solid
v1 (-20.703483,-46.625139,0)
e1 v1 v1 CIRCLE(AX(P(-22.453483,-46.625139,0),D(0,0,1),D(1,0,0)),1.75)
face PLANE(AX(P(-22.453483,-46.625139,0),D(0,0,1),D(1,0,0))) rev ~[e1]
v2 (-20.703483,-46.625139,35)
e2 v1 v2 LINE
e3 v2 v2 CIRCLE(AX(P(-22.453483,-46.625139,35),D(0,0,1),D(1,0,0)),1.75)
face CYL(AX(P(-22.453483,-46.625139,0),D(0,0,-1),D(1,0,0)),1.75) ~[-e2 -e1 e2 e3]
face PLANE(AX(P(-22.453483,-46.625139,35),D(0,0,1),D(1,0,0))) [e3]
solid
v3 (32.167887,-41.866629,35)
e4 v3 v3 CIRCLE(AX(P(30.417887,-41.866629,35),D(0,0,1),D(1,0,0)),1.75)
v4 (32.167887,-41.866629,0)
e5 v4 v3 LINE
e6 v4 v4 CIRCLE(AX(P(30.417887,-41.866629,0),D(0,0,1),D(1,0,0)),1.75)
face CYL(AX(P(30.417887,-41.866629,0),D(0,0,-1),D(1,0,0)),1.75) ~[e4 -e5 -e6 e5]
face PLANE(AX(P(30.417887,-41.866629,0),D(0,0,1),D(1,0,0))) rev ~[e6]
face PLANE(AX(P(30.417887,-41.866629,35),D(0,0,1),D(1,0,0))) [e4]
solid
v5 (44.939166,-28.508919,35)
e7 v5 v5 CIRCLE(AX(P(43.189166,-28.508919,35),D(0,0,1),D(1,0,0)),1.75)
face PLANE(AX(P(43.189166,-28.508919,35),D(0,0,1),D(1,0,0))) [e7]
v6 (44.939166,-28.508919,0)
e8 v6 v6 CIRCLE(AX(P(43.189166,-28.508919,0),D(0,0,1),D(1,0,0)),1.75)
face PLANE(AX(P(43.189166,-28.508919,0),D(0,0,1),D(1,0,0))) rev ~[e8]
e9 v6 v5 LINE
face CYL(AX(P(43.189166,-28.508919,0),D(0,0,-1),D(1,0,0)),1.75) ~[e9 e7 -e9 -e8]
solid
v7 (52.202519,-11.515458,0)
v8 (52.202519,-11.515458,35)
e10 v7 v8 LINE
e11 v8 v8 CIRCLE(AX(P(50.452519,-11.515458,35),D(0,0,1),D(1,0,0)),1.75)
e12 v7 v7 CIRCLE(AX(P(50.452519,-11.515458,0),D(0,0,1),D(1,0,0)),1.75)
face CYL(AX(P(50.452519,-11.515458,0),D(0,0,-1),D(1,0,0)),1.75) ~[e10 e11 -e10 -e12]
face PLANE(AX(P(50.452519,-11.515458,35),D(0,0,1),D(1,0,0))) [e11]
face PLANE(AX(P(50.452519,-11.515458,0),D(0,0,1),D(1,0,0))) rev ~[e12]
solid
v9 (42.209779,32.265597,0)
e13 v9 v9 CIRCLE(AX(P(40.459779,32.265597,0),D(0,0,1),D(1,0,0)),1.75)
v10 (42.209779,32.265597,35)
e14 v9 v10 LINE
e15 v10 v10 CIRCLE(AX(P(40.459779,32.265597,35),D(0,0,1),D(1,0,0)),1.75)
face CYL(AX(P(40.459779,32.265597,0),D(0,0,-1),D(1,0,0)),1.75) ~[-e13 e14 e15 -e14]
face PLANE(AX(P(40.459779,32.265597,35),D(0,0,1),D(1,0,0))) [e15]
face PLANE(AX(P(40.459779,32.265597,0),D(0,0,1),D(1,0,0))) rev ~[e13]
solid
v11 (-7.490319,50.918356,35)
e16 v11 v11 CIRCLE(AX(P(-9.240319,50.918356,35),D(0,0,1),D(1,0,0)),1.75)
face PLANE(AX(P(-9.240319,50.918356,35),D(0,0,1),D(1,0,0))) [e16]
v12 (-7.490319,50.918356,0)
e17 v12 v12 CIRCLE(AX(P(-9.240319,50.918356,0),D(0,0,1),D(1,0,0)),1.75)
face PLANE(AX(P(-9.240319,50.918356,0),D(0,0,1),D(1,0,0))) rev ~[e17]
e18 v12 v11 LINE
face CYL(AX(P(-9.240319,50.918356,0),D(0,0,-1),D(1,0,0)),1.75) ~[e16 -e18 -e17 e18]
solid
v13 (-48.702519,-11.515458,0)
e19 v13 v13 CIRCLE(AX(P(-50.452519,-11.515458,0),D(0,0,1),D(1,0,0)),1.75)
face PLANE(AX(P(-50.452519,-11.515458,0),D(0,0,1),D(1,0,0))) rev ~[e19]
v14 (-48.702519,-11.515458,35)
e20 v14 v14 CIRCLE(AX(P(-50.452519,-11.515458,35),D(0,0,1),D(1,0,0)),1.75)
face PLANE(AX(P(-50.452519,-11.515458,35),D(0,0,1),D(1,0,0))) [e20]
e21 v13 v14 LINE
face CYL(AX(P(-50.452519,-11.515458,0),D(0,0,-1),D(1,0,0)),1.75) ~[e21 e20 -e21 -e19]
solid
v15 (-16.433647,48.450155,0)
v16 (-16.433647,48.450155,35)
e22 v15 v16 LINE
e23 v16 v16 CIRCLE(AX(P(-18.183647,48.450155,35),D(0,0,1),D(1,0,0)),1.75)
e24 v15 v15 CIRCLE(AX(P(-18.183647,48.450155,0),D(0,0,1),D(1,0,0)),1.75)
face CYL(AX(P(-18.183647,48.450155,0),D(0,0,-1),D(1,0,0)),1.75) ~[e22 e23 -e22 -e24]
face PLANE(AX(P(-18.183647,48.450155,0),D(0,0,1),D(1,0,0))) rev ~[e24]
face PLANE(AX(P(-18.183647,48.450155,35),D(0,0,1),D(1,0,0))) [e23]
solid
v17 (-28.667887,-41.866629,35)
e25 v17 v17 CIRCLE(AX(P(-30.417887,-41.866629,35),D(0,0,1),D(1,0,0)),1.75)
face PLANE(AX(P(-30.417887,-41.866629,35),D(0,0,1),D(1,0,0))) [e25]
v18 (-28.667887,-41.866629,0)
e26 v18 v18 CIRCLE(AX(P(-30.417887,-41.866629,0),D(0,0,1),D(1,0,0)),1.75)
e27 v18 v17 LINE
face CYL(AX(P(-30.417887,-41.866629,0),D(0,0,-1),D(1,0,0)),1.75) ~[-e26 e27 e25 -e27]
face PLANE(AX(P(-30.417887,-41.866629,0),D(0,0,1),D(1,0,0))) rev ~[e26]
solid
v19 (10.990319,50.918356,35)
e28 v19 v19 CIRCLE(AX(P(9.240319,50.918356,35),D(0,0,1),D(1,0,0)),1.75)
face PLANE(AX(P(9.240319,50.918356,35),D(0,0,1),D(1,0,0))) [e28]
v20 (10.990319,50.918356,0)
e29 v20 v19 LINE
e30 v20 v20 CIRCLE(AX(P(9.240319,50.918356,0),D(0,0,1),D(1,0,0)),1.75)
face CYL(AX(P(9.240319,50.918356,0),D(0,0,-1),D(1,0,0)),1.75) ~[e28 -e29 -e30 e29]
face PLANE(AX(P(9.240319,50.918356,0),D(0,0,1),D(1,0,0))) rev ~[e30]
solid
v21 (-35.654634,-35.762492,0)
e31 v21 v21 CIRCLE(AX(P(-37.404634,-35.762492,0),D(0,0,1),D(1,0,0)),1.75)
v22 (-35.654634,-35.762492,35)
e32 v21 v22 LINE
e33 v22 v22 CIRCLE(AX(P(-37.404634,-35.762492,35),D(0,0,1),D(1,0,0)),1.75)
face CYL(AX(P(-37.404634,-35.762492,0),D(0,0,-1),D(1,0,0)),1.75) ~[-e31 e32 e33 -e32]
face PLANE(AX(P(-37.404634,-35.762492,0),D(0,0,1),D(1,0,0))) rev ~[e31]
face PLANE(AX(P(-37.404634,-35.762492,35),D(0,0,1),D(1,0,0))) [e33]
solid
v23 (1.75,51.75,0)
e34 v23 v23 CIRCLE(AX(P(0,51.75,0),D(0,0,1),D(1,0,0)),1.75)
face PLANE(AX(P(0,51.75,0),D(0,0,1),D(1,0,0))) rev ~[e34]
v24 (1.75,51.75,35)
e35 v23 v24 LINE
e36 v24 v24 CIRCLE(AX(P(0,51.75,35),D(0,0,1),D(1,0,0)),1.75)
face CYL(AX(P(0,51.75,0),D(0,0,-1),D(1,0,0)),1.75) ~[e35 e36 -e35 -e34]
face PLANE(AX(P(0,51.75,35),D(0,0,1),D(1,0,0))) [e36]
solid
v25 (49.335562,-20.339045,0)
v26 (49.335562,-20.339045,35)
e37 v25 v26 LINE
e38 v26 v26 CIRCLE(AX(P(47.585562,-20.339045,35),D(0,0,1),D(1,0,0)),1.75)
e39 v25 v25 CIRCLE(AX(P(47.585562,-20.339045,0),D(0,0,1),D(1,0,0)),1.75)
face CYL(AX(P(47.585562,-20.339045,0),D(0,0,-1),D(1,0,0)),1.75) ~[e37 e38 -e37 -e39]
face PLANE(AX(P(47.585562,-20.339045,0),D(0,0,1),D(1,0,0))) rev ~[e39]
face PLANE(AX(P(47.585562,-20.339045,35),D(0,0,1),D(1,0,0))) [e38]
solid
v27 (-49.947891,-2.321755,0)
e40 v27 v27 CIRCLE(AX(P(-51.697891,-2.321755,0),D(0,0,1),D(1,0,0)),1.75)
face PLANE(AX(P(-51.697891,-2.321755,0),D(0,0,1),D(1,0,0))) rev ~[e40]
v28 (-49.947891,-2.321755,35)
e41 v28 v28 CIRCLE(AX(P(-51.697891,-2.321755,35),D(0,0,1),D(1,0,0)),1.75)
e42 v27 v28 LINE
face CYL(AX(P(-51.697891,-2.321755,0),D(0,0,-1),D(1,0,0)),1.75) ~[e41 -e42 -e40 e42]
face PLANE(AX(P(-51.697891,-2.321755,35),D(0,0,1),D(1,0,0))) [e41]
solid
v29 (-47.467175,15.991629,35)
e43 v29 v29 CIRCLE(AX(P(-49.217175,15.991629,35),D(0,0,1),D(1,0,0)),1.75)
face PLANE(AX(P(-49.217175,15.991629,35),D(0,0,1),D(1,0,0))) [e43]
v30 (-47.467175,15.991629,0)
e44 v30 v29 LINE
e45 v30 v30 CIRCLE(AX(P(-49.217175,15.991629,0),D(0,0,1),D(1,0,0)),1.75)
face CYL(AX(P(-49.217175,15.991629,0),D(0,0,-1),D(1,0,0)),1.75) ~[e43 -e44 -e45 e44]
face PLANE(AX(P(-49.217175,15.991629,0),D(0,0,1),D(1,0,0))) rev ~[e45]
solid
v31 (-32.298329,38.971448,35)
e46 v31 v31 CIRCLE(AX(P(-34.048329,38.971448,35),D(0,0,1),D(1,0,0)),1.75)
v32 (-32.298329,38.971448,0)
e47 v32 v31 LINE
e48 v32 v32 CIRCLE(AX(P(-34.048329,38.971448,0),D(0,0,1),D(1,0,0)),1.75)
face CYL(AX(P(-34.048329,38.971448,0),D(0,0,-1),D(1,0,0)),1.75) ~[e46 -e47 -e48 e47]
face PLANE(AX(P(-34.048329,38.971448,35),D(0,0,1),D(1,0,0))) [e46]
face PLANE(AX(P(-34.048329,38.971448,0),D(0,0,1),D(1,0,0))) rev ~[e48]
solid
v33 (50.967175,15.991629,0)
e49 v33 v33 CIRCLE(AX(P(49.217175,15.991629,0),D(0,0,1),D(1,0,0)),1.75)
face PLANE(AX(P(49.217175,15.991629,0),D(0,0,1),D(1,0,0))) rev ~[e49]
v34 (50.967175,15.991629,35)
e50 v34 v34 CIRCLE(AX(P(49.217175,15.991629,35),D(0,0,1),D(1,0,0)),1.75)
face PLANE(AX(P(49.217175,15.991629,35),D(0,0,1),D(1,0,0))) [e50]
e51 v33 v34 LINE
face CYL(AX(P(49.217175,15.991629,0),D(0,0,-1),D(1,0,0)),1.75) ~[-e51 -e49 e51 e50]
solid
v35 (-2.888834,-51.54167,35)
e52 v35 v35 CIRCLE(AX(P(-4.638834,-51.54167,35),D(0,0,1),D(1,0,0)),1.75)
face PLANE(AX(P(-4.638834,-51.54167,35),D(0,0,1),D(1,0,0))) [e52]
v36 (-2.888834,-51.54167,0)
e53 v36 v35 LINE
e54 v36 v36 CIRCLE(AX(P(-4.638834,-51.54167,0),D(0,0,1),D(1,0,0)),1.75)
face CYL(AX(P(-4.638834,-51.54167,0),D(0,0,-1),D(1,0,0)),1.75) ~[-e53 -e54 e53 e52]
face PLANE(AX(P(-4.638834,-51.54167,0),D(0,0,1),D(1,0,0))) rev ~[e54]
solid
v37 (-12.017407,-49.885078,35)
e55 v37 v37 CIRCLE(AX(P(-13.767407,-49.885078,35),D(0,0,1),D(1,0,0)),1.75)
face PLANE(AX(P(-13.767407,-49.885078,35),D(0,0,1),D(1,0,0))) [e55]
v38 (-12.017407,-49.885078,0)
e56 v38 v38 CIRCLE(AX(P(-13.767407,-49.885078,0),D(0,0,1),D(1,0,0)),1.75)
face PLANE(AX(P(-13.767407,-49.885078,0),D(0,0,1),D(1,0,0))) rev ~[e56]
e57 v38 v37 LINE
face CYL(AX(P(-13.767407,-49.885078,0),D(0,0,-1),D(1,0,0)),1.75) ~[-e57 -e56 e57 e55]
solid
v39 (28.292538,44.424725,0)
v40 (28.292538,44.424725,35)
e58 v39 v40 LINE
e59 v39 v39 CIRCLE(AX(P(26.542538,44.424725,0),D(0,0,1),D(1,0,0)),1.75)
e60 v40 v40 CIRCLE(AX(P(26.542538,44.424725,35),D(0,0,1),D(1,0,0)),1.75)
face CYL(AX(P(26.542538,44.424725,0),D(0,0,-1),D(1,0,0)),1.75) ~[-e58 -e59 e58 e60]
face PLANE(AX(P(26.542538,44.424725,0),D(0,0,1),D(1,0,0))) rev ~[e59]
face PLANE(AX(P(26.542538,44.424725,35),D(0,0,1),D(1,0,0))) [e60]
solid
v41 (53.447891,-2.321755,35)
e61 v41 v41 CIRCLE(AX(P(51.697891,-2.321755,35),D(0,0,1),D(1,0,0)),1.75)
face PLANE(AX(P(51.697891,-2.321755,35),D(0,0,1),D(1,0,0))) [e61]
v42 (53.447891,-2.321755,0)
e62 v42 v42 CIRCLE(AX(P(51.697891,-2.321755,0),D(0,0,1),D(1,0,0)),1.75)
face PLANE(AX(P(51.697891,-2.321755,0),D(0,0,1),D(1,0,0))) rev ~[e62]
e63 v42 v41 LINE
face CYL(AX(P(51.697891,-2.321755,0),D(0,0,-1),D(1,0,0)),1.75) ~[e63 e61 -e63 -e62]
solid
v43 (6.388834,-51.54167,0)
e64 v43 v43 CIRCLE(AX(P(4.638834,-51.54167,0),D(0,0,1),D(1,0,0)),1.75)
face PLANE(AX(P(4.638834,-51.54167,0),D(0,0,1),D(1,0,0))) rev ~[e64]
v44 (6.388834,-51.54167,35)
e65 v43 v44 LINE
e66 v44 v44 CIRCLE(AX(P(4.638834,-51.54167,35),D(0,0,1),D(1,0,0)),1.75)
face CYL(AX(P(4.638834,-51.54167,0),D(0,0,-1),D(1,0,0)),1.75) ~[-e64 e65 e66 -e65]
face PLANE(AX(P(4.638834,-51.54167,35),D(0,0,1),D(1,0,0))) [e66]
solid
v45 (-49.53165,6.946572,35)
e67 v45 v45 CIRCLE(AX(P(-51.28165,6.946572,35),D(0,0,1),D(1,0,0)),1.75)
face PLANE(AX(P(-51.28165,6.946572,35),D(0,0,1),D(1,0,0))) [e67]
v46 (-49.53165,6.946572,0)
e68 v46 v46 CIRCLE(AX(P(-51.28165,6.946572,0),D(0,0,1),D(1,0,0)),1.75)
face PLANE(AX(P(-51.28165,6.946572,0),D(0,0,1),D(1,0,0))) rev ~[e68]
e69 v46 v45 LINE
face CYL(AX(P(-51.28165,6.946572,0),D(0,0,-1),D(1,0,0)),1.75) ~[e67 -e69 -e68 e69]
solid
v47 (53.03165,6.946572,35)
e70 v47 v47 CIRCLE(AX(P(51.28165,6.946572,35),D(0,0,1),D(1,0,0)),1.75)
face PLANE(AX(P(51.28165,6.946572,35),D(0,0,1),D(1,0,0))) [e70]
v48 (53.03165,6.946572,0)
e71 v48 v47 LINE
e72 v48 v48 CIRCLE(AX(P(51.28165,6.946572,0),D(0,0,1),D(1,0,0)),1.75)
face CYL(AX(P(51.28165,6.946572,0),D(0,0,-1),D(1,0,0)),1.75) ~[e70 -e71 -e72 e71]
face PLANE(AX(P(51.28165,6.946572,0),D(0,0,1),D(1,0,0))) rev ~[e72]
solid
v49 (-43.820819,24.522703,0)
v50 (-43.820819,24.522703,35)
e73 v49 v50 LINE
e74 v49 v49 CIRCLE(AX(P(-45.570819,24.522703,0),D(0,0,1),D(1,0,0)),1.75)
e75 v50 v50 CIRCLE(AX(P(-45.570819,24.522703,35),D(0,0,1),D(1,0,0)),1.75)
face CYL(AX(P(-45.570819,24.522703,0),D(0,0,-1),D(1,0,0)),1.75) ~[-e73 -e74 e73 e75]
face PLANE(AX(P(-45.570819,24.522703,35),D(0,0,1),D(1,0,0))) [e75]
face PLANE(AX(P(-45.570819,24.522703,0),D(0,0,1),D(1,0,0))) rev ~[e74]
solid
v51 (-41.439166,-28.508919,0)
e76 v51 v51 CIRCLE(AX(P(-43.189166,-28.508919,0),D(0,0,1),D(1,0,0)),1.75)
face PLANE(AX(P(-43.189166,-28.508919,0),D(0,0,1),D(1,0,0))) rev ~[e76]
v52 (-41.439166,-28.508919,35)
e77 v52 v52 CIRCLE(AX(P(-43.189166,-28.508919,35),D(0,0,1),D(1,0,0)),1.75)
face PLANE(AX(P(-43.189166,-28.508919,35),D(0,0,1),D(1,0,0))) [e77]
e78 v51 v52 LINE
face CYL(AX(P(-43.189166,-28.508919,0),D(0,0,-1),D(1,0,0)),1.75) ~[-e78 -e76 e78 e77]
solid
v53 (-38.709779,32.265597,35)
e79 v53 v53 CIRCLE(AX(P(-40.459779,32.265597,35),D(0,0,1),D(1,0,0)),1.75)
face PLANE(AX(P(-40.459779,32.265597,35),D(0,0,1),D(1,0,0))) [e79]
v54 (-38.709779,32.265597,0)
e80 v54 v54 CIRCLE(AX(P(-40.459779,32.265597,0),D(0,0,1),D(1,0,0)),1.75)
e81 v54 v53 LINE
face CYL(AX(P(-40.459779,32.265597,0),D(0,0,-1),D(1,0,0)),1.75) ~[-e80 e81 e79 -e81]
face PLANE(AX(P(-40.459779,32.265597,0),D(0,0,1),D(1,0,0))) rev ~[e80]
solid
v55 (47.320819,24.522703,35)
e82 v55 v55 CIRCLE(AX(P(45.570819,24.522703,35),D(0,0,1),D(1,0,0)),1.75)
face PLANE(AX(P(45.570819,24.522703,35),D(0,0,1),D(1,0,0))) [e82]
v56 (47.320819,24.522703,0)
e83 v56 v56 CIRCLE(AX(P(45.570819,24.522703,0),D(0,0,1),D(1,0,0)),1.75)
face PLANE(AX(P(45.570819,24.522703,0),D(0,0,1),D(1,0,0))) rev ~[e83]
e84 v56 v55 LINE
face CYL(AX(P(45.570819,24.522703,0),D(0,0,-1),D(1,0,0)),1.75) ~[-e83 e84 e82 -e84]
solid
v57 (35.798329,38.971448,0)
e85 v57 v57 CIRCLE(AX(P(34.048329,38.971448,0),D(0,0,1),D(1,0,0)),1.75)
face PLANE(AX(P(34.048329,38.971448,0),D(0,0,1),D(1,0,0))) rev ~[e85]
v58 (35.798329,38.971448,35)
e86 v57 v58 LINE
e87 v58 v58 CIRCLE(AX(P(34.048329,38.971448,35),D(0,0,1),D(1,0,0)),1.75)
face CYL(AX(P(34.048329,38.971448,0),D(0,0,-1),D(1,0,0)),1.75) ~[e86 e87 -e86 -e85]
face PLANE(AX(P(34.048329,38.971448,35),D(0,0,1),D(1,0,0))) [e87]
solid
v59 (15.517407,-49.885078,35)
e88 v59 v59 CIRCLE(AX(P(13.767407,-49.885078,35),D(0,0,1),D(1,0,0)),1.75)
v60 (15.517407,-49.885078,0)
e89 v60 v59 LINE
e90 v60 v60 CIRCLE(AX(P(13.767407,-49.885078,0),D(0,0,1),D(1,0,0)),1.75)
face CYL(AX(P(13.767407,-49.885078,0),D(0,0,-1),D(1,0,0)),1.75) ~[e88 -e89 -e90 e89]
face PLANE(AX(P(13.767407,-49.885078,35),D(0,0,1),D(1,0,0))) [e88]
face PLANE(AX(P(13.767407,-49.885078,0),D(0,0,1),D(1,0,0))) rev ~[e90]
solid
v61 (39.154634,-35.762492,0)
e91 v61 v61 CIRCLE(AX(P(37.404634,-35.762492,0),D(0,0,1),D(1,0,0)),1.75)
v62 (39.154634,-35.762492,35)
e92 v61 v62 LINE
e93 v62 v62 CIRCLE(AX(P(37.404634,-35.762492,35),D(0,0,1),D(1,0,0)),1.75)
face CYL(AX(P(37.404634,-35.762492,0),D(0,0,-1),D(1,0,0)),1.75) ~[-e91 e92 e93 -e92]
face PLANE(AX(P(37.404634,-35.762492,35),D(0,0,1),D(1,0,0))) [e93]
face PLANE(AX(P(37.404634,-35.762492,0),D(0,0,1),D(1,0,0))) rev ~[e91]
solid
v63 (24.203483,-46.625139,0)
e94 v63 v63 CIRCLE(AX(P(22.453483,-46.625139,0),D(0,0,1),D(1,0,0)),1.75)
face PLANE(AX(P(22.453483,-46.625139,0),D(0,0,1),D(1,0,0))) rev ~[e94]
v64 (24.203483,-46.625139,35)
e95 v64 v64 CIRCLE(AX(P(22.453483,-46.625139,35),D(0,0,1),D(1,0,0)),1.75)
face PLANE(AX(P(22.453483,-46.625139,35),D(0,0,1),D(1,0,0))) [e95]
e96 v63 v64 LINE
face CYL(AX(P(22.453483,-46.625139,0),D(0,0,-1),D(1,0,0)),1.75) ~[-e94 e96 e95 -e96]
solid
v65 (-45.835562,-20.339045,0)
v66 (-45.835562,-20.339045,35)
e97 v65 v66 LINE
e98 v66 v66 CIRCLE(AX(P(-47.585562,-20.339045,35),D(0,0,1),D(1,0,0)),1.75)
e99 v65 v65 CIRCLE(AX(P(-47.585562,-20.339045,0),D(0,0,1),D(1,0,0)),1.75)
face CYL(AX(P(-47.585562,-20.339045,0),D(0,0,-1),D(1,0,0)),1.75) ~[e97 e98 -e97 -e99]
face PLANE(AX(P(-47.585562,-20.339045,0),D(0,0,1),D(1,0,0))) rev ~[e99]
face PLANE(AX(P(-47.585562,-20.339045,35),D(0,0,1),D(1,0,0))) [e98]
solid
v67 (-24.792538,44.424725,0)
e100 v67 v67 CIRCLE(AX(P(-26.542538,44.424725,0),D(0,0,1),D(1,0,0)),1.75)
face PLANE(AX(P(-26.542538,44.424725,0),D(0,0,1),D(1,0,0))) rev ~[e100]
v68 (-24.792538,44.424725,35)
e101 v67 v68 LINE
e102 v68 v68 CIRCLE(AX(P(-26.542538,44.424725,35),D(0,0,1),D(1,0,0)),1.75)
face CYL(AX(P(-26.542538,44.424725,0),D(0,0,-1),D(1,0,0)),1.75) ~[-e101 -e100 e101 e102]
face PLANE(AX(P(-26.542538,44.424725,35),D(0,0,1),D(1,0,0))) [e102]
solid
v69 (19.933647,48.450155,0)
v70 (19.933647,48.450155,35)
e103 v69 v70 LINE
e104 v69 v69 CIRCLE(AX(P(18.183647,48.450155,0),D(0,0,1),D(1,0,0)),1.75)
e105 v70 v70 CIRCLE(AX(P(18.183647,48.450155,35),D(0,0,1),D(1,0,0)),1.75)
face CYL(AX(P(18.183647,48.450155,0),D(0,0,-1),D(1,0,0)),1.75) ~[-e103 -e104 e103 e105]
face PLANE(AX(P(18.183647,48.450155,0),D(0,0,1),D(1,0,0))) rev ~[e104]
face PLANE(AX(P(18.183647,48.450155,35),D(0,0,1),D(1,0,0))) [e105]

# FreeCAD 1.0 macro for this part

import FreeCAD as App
import Part
import Sketcher

V = App.Vector
Q = App.Units.Quantity

doc = App.newDocument("Part")
params = doc.addObject("Spreadsheet::Sheet", "Params")
for row, (alias, value) in enumerate([
    ("sketch1_diameter", "3.5 mm"),
    ("pad1_length", "35 mm"),
    ("sketch2_diameter", "3.5 mm"),
    ("pad2_length", "35 mm"),
    ("sketch3_diameter", "3.5 mm"),
    ("pad3_length", "35 mm"),
    ("sketch4_diameter", "3.5 mm"),
    ("pad4_length", "35 mm"),
    ("sketch5_diameter", "3.5 mm"),
    ("pad5_length", "35 mm"),
    ("sketch6_diameter", "3.5 mm"),
    ("pad6_length", "35 mm"),
    ("sketch7_diameter", "3.5 mm"),
    ("pad7_length", "35 mm"),
    ("sketch8_diameter", "3.5 mm"),
    ("pad8_length", "35 mm"),
    ("sketch9_diameter", "3.5 mm"),
    ("pad9_length", "35 mm"),
    ("sketch10_diameter", "3.5 mm"),
    ("pad10_length", "35 mm"),
    ("sketch11_diameter", "3.5 mm"),
    ("pad11_length", "35 mm"),
    ("sketch12_diameter", "3.5 mm"),
    ("pad12_length", "35 mm"),
    ("sketch13_diameter", "3.5 mm"),
    ("pad13_length", "35 mm"),
    ("sketch14_diameter", "3.5 mm"),
    ("pad14_length", "35 mm"),
    ("sketch15_diameter", "3.5 mm"),
    ("pad15_length", "35 mm"),
    ("sketch16_diameter", "3.5 mm"),
    ("pad16_length", "35 mm"),
    ("sketch17_diameter", "3.5 mm"),
    ("pad17_length", "35 mm"),
    ("sketch18_diameter", "3.5 mm"),
    ("pad18_length", "35 mm"),
    ("sketch19_diameter", "3.5 mm"),
    ("pad19_length", "35 mm"),
    ("sketch20_diameter", "3.5 mm"),
    ("pad20_length", "35 mm"),
    ("sketch21_diameter", "3.5 mm"),
    ("pad21_length", "35 mm"),
    ("sketch22_diameter", "3.5 mm"),
    ("pad22_length", "35 mm"),
    ("sketch23_diameter", "3.5 mm"),
    ("pad23_length", "35 mm"),
    ("sketch24_diameter", "3.5 mm"),
    ("pad24_length", "35 mm"),
    ("sketch25_diameter", "3.5 mm"),
    ("pad25_length", "35 mm"),
    ("sketch26_diameter", "3.5 mm"),
    ("pad26_length", "35 mm"),
    ("sketch27_diameter", "3.5 mm"),
    ("pad27_length", "35 mm"),
    ("sketch28_diameter", "3.5 mm"),
    ("pad28_length", "35 mm"),
    ("sketch29_diameter", "3.5 mm"),
    ("pad29_length", "35 mm"),
    ("sketch30_diameter", "3.5 mm"),
    ("pad30_length", "35 mm"),
    ("sketch31_diameter", "3.5 mm"),
    ("pad31_length", "35 mm"),
    ("sketch32_diameter", "3.5 mm"),
    ("pad32_length", "35 mm"),
    ("sketch33_diameter", "3.5 mm"),
    ("pad33_length", "35 mm"),
    ("sketch34_diameter", "3.5 mm"),
    ("pad34_length", "35 mm"),
    ("sketch35_diameter", "3.5 mm"),
    ("pad35_length", "35 mm"),
], start=1):
    params.set(f"A{row}", alias)
    params.set(f"B{row}", "=" + value)
    params.setAlias(f"B{row}", alias)

body = doc.addObject("PartDesign::Body", "Body")

# Sketch on XY plane
sketch1 = doc.addObject("Sketcher::SketchObject", "Sketch")
body.addObject(sketch1)
sketch1.AttachmentSupport = (doc.XY_Plane, [""])
sketch1.MapMode = "FlatFace"
sketch1.addGeometry(Part.Circle(V(0, 51.8, 0), V(0, 0, 1), 1.8), False)
sketch1.addConstraint(Sketcher.Constraint("PointOnObject", 0, 3, -2))
sketch1.addConstraint(Sketcher.Constraint("Diameter", 0, Q("3.5 mm")))
sketch1.addConstraint(Sketcher.Constraint("DistanceY", -1, 1, 0, 3, Q("51.75 mm")))
sketch1.setExpression("Constraints[1]", "Params.sketch1_diameter")
pad1 = doc.addObject("PartDesign::Pad", "Pad")
body.addObject(pad1)
pad1.Profile = sketch1
pad1.setExpression("Length", "Params.pad1_length")
body2 = doc.addObject("PartDesign::Body", "Body001")

# Sketch on XY plane
sketch2 = doc.addObject("Sketcher::SketchObject", "Sketch001")
body2.addObject(sketch2)
sketch2.AttachmentSupport = (doc.getObject("XY_Plane001"), [""])
sketch2.MapMode = "FlatFace"
sketch2.addGeometry(Part.Circle(V(9.2, 50.9, 0), V(0, 0, 1), 1.8), False)
sketch2.addConstraint(Sketcher.Constraint("Diameter", 0, Q("3.5 mm")))
sketch2.addConstraint(Sketcher.Constraint("DistanceX", -1, 1, 0, 3, Q("9.240319 mm")))
sketch2.addConstraint(Sketcher.Constraint("DistanceY", -1, 1, 0, 3, Q("50.918356 mm")))
sketch2.setExpression("Constraints[0]", "Params.sketch2_diameter")
pad2 = doc.addObject("PartDesign::Pad", "Pad001")
body2.addObject(pad2)
pad2.Profile = sketch2
pad2.setExpression("Length", "Params.pad2_length")
body3 = doc.addObject("PartDesign::Body", "Body002")

# Sketch on XY plane
sketch3 = doc.addObject("Sketcher::SketchObject", "Sketch002")
body3.addObject(sketch3)
sketch3.AttachmentSupport = (doc.getObject("XY_Plane002"), [""])
sketch3.MapMode = "FlatFace"
sketch3.addGeometry(Part.Circle(V(18.2, 48.5, 0), V(0, 0, 1), 1.8), False)
sketch3.addConstraint(Sketcher.Constraint("Diameter", 0, Q("3.5 mm")))
sketch3.addConstraint(Sketcher.Constraint("DistanceX", -1, 1, 0, 3, Q("18.183647 mm")))
sketch3.addConstraint(Sketcher.Constraint("DistanceY", -1, 1, 0, 3, Q("48.450155 mm")))
sketch3.setExpression("Constraints[0]", "Params.sketch3_diameter")
pad3 = doc.addObject("PartDesign::Pad", "Pad002")
body3.addObject(pad3)
pad3.Profile = sketch3
pad3.setExpression("Length", "Params.pad3_length")
body4 = doc.addObject("PartDesign::Body", "Body003")

# Sketch on XY plane
sketch4 = doc.addObject("Sketcher::SketchObject", "Sketch003")
body4.addObject(sketch4)
sketch4.AttachmentSupport = (doc.getObject("XY_Plane003"), [""])
sketch4.MapMode = "FlatFace"
sketch4.addGeometry(Part.Circle(V(26.5, 44.4, 0), V(0, 0, 1), 1.8), False)
sketch4.addConstraint(Sketcher.Constraint("Diameter", 0, Q("3.5 mm")))
sketch4.addConstraint(Sketcher.Constraint("DistanceX", -1, 1, 0, 3, Q("26.542538 mm")))
sketch4.addConstraint(Sketcher.Constraint("DistanceY", -1, 1, 0, 3, Q("44.424725 mm")))
sketch4.setExpression("Constraints[0]", "Params.sketch4_diameter")
pad4 = doc.addObject("PartDesign::Pad", "Pad003")
body4.addObject(pad4)
pad4.Profile = sketch4
pad4.setExpression("Length", "Params.pad4_length")
body5 = doc.addObject("PartDesign::Body", "Body004")

# Sketch on XY plane
sketch5 = doc.addObject("Sketcher::SketchObject", "Sketch004")
body5.addObject(sketch5)
sketch5.AttachmentSupport = (doc.getObject("XY_Plane004"), [""])
sketch5.MapMode = "FlatFace"
sketch5.addGeometry(Part.Circle(V(34, 39, 0), V(0, 0, 1), 1.8), False)
sketch5.addConstraint(Sketcher.Constraint("Diameter", 0, Q("3.5 mm")))
sketch5.addConstraint(Sketcher.Constraint("DistanceX", -1, 1, 0, 3, Q("34.048329 mm")))
sketch5.addConstraint(Sketcher.Constraint("DistanceY", -1, 1, 0, 3, Q("38.971448 mm")))
sketch5.setExpression("Constraints[0]", "Params.sketch5_diameter")
pad5 = doc.addObject("PartDesign::Pad", "Pad004")
body5.addObject(pad5)
pad5.Profile = sketch5
pad5.setExpression("Length", "Params.pad5_length")
body6 = doc.addObject("PartDesign::Body", "Body005")

# Sketch on XY plane
sketch6 = doc.addObject("Sketcher::SketchObject", "Sketch005")
body6.addObject(sketch6)
sketch6.AttachmentSupport = (doc.getObject("XY_Plane005"), [""])
sketch6.MapMode = "FlatFace"
sketch6.addGeometry(Part.Circle(V(40.5, 32.3, 0), V(0, 0, 1), 1.8), False)
sketch6.addConstraint(Sketcher.Constraint("Diameter", 0, Q("3.5 mm")))
sketch6.addConstraint(Sketcher.Constraint("DistanceX", -1, 1, 0, 3, Q("40.459779 mm")))
sketch6.addConstraint(Sketcher.Constraint("DistanceY", -1, 1, 0, 3, Q("32.265597 mm")))
sketch6.setExpression("Constraints[0]", "Params.sketch6_diameter")
pad6 = doc.addObject("PartDesign::Pad", "Pad005")
body6.addObject(pad6)
pad6.Profile = sketch6
pad6.setExpression("Length", "Params.pad6_length")
body7 = doc.addObject("PartDesign::Body", "Body006")

# Sketch on XY plane
sketch7 = doc.addObject("Sketcher::SketchObject", "Sketch006")
body7.addObject(sketch7)
sketch7.AttachmentSupport = (doc.getObject("XY_Plane006"), [""])
sketch7.MapMode = "FlatFace"
sketch7.addGeometry(Part.Circle(V(45.6, 24.5, 0), V(0, 0, 1), 1.8), False)
sketch7.addConstraint(Sketcher.Constraint("Diameter", 0, Q("3.5 mm")))
sketch7.addConstraint(Sketcher.Constraint("DistanceX", -1, 1, 0, 3, Q("45.570819 mm")))
sketch7.addConstraint(Sketcher.Constraint("DistanceY", -1, 1, 0, 3, Q("24.522703 mm")))
sketch7.setExpression("Constraints[0]", "Params.sketch7_diameter")
pad7 = doc.addObject("PartDesign::Pad", "Pad006")
body7.addObject(pad7)
pad7.Profile = sketch7
pad7.setExpression("Length", "Params.pad7_length")
body8 = doc.addObject("PartDesign::Body", "Body007")

# Sketch on XY plane
sketch8 = doc.addObject("Sketcher::SketchObject", "Sketch007")
body8.addObject(sketch8)
sketch8.AttachmentSupport = (doc.getObject("XY_Plane007"), [""])
sketch8.MapMode = "FlatFace"
sketch8.addGeometry(Part.Circle(V(49.2, 16, 0), V(0, 0, 1), 1.8), False)
sketch8.addConstraint(Sketcher.Constraint("Diameter", 0, Q("3.5 mm")))
sketch8.addConstraint(Sketcher.Constraint("DistanceY", -1, 1, 0, 3, Q("15.991629 mm")))
sketch8.addConstraint(Sketcher.Constraint("DistanceX", -1, 1, 0, 3, Q("49.217175 mm")))
sketch8.setExpression("Constraints[0]", "Params.sketch8_diameter")
pad8 = doc.addObject("PartDesign::Pad", "Pad007")
body8.addObject(pad8)
pad8.Profile = sketch8
pad8.setExpression("Length", "Params.pad8_length")
body9 = doc.addObject("PartDesign::Body", "Body008")

# Sketch on XY plane
sketch9 = doc.addObject("Sketcher::SketchObject", "Sketch008")
body9.addObject(sketch9)
sketch9.AttachmentSupport = (doc.getObject("XY_Plane008"), [""])
sketch9.MapMode = "FlatFace"
sketch9.addGeometry(Part.Circle(V(51.3, 6.9, 0), V(0, 0, 1), 1.8), False)
sketch9.addConstraint(Sketcher.Constraint("Diameter", 0, Q("3.5 mm")))
sketch9.addConstraint(Sketcher.Constraint("DistanceX", -1, 1, 0, 3, Q("51.28165 mm")))
sketch9.addConstraint(Sketcher.Constraint("DistanceY", -1, 1, 0, 3, Q("6.946572 mm")))
sketch9.setExpression("Constraints[0]", "Params.sketch9_diameter")
pad9 = doc.addObject("PartDesign::Pad", "Pad008")
body9.addObject(pad9)
pad9.Profile = sketch9
pad9.setExpression("Length", "Params.pad9_length")
body10 = doc.addObject("PartDesign::Body", "Body009")

# Sketch on XY plane
sketch10 = doc.addObject("Sketcher::SketchObject", "Sketch009")
body10.addObject(sketch10)
sketch10.AttachmentSupport = (doc.getObject("XY_Plane009"), [""])
sketch10.MapMode = "FlatFace"
sketch10.addGeometry(Part.Circle(V(51.7, -2.3, 0), V(0, 0, 1), 1.8), False)
sketch10.addConstraint(Sketcher.Constraint("Diameter", 0, Q("3.5 mm")))
sketch10.addConstraint(Sketcher.Constraint("DistanceX", -1, 1, 0, 3, Q("51.697891 mm")))
sketch10.addConstraint(Sketcher.Constraint("DistanceY", 0, 3, -1, 1, Q("2.321755 mm")))
sketch10.setExpression("Constraints[0]", "Params.sketch10_diameter")
pad10 = doc.addObject("PartDesign::Pad", "Pad009")
body10.addObject(pad10)
pad10.Profile = sketch10
pad10.setExpression("Length", "Params.pad10_length")
body11 = doc.addObject("PartDesign::Body", "Body010")

# Sketch on XY plane
sketch11 = doc.addObject("Sketcher::SketchObject", "Sketch010")
body11.addObject(sketch11)
sketch11.AttachmentSupport = (doc.getObject("XY_Plane010"), [""])
sketch11.MapMode = "FlatFace"
sketch11.addGeometry(Part.Circle(V(50.5, -11.5, 0), V(0, 0, 1), 1.8), False)
sketch11.addConstraint(Sketcher.Constraint("Diameter", 0, Q("3.5 mm")))
sketch11.addConstraint(Sketcher.Constraint("DistanceX", -1, 1, 0, 3, Q("50.452519 mm")))
sketch11.addConstraint(Sketcher.Constraint("DistanceY", 0, 3, -1, 1, Q("11.515458 mm")))
sketch11.setExpression("Constraints[0]", "Params.sketch11_diameter")
pad11 = doc.addObject("PartDesign::Pad", "Pad010")
body11.addObject(pad11)
pad11.Profile = sketch11
pad11.setExpression("Length", "Params.pad11_length")
body12 = doc.addObject("PartDesign::Body", "Body011")

# Sketch on XY plane
sketch12 = doc.addObject("Sketcher::SketchObject", "Sketch011")
body12.addObject(sketch12)
sketch12.AttachmentSupport = (doc.getObject("XY_Plane011"), [""])
sketch12.MapMode = "FlatFace"
sketch12.addGeometry(Part.Circle(V(47.6, -20.3, 0), V(0, 0, 1), 1.8), False)
sketch12.addConstraint(Sketcher.Constraint("Diameter", 0, Q("3.5 mm")))
sketch12.addConstraint(Sketcher.Constraint("DistanceX", -1, 1, 0, 3, Q("47.585562 mm")))
sketch12.addConstraint(Sketcher.Constraint("DistanceY", 0, 3, -1, 1, Q("20.339045 mm")))
sketch12.setExpression("Constraints[0]", "Params.sketch12_diameter")
pad12 = doc.addObject("PartDesign::Pad", "Pad011")
body12.addObject(pad12)
pad12.Profile = sketch12
pad12.setExpression("Length", "Params.pad12_length")
body13 = doc.addObject("PartDesign::Body", "Body012")

# Sketch on XY plane
sketch13 = doc.addObject("Sketcher::SketchObject", "Sketch012")
body13.addObject(sketch13)
sketch13.AttachmentSupport = (doc.getObject("XY_Plane012"), [""])
sketch13.MapMode = "FlatFace"
sketch13.addGeometry(Part.Circle(V(43.2, -28.5, 0), V(0, 0, 1), 1.8), False)
sketch13.addConstraint(Sketcher.Constraint("Diameter", 0, Q("3.5 mm")))
sketch13.addConstraint(Sketcher.Constraint("DistanceY", 0, 3, -1, 1, Q("28.508919 mm")))
sketch13.addConstraint(Sketcher.Constraint("DistanceX", -1, 1, 0, 3, Q("43.189166 mm")))
sketch13.setExpression("Constraints[0]", "Params.sketch13_diameter")
pad13 = doc.addObject("PartDesign::Pad", "Pad012")
body13.addObject(pad13)
pad13.Profile = sketch13
pad13.setExpression("Length", "Params.pad13_length")
body14 = doc.addObject("PartDesign::Body", "Body013")

# Sketch on XY plane
sketch14 = doc.addObject("Sketcher::SketchObject", "Sketch013")
body14.addObject(sketch14)
sketch14.AttachmentSupport = (doc.getObject("XY_Plane013"), [""])
sketch14.MapMode = "FlatFace"
sketch14.addGeometry(Part.Circle(V(37.4, -35.8, 0), V(0, 0, 1), 1.8), False)
sketch14.addConstraint(Sketcher.Constraint("Diameter", 0, Q("3.5 mm")))
sketch14.addConstraint(Sketcher.Constraint("DistanceX", -1, 1, 0, 3, Q("37.404634 mm")))
sketch14.addConstraint(Sketcher.Constraint("DistanceY", 0, 3, -1, 1, Q("35.762492 mm")))
sketch14.setExpression("Constraints[0]", "Params.sketch14_diameter")
pad14 = doc.addObject("PartDesign::Pad", "Pad013")
body14.addObject(pad14)
pad14.Profile = sketch14
pad14.setExpression("Length", "Params.pad14_length")
body15 = doc.addObject("PartDesign::Body", "Body014")

# Sketch on XY plane
sketch15 = doc.addObject("Sketcher::SketchObject", "Sketch014")
body15.addObject(sketch15)
sketch15.AttachmentSupport = (doc.getObject("XY_Plane014"), [""])
sketch15.MapMode = "FlatFace"
sketch15.addGeometry(Part.Circle(V(30.4, -41.9, 0), V(0, 0, 1), 1.8), False)
sketch15.addConstraint(Sketcher.Constraint("Diameter", 0, Q("3.5 mm")))
sketch15.addConstraint(Sketcher.Constraint("DistanceY", 0, 3, -1, 1, Q("41.866629 mm")))
sketch15.addConstraint(Sketcher.Constraint("DistanceX", -1, 1, 0, 3, Q("30.417887 mm")))
sketch15.setExpression("Constraints[0]", "Params.sketch15_diameter")
pad15 = doc.addObject("PartDesign::Pad", "Pad014")
body15.addObject(pad15)
pad15.Profile = sketch15
pad15.setExpression("Length", "Params.pad15_length")
body16 = doc.addObject("PartDesign::Body", "Body015")

# Sketch on XY plane
sketch16 = doc.addObject("Sketcher::SketchObject", "Sketch015")
body16.addObject(sketch16)
sketch16.AttachmentSupport = (doc.getObject("XY_Plane015"), [""])
sketch16.MapMode = "FlatFace"
sketch16.addGeometry(Part.Circle(V(22.5, -46.6, 0), V(0, 0, 1), 1.8), False)
sketch16.addConstraint(Sketcher.Constraint("Diameter", 0, Q("3.5 mm")))
sketch16.addConstraint(Sketcher.Constraint("DistanceY", 0, 3, -1, 1, Q("46.625139 mm")))
sketch16.addConstraint(Sketcher.Constraint("DistanceX", -1, 1, 0, 3, Q("22.453483 mm")))
sketch16.setExpression("Constraints[0]", "Params.sketch16_diameter")
pad16 = doc.addObject("PartDesign::Pad", "Pad015")
body16.addObject(pad16)
pad16.Profile = sketch16
pad16.setExpression("Length", "Params.pad16_length")
body17 = doc.addObject("PartDesign::Body", "Body016")

# Sketch on XY plane
sketch17 = doc.addObject("Sketcher::SketchObject", "Sketch016")
body17.addObject(sketch17)
sketch17.AttachmentSupport = (doc.getObject("XY_Plane016"), [""])
sketch17.MapMode = "FlatFace"
sketch17.addGeometry(Part.Circle(V(13.8, -49.9, 0), V(0, 0, 1), 1.8), False)
sketch17.addConstraint(Sketcher.Constraint("Diameter", 0, Q("3.5 mm")))
sketch17.addConstraint(Sketcher.Constraint("DistanceY", 0, 3, -1, 1, Q("49.885078 mm")))
sketch17.addConstraint(Sketcher.Constraint("DistanceX", -1, 1, 0, 3, Q("13.767407 mm")))
sketch17.setExpression("Constraints[0]", "Params.sketch17_diameter")
pad17 = doc.addObject("PartDesign::Pad", "Pad016")
body17.addObject(pad17)
pad17.Profile = sketch17
pad17.setExpression("Length", "Params.pad17_length")
body18 = doc.addObject("PartDesign::Body", "Body017")

# Sketch on XY plane
sketch18 = doc.addObject("Sketcher::SketchObject", "Sketch017")
body18.addObject(sketch18)
sketch18.AttachmentSupport = (doc.getObject("XY_Plane017"), [""])
sketch18.MapMode = "FlatFace"
sketch18.addGeometry(Part.Circle(V(4.6, -51.5, 0), V(0, 0, 1), 1.8), False)
sketch18.addConstraint(Sketcher.Constraint("Diameter", 0, Q("3.5 mm")))
sketch18.addConstraint(Sketcher.Constraint("DistanceY", 0, 3, -1, 1, Q("51.54167 mm")))
sketch18.addConstraint(Sketcher.Constraint("DistanceX", -1, 1, 0, 3, Q("4.638834 mm")))
sketch18.setExpression("Constraints[0]", "Params.sketch18_diameter")
pad18 = doc.addObject("PartDesign::Pad", "Pad017")
body18.addObject(pad18)
pad18.Profile = sketch18
pad18.setExpression("Length", "Params.pad18_length")
body19 = doc.addObject("PartDesign::Body", "Body018")

# Sketch on XY plane
sketch19 = doc.addObject("Sketcher::SketchObject", "Sketch018")
body19.addObject(sketch19)
sketch19.AttachmentSupport = (doc.getObject("XY_Plane018"), [""])
sketch19.MapMode = "FlatFace"
sketch19.addGeometry(Part.Circle(V(-4.6, -51.5, 0), V(0, 0, 1), 1.8), False)
sketch19.addConstraint(Sketcher.Constraint("Diameter", 0, Q("3.5 mm")))
sketch19.addConstraint(Sketcher.Constraint("DistanceY", 0, 3, -1, 1, Q("51.54167 mm")))
sketch19.addConstraint(Sketcher.Constraint("DistanceX", 0, 3, -1, 1, Q("4.638834 mm")))
sketch19.setExpression("Constraints[0]", "Params.sketch19_diameter")
pad19 = doc.addObject("PartDesign::Pad", "Pad018")
body19.addObject(pad19)
pad19.Profile = sketch19
pad19.setExpression("Length", "Params.pad19_length")
body20 = doc.addObject("PartDesign::Body", "Body019")

# Sketch on XY plane
sketch20 = doc.addObject("Sketcher::SketchObject", "Sketch019")
body20.addObject(sketch20)
sketch20.AttachmentSupport = (doc.getObject("XY_Plane019"), [""])
sketch20.MapMode = "FlatFace"
sketch20.addGeometry(Part.Circle(V(-13.8, -49.9, 0), V(0, 0, 1), 1.8), False)
sketch20.addConstraint(Sketcher.Constraint("Diameter", 0, Q("3.5 mm")))
sketch20.addConstraint(Sketcher.Constraint("DistanceY", 0, 3, -1, 1, Q("49.885078 mm")))
sketch20.addConstraint(Sketcher.Constraint("DistanceX", 0, 3, -1, 1, Q("13.767407 mm")))
sketch20.setExpression("Constraints[0]", "Params.sketch20_diameter")
pad20 = doc.addObject("PartDesign::Pad", "Pad019")
body20.addObject(pad20)
pad20.Profile = sketch20
pad20.setExpression("Length", "Params.pad20_length")
body21 = doc.addObject("PartDesign::Body", "Body020")

# Sketch on XY plane
sketch21 = doc.addObject("Sketcher::SketchObject", "Sketch020")
body21.addObject(sketch21)
sketch21.AttachmentSupport = (doc.getObject("XY_Plane020"), [""])
sketch21.MapMode = "FlatFace"
sketch21.addGeometry(Part.Circle(V(-22.5, -46.6, 0), V(0, 0, 1), 1.8), False)
sketch21.addConstraint(Sketcher.Constraint("Diameter", 0, Q("3.5 mm")))
sketch21.addConstraint(Sketcher.Constraint("DistanceY", 0, 3, -1, 1, Q("46.625139 mm")))
sketch21.addConstraint(Sketcher.Constraint("DistanceX", 0, 3, -1, 1, Q("22.453483 mm")))
sketch21.setExpression("Constraints[0]", "Params.sketch21_diameter")
pad21 = doc.addObject("PartDesign::Pad", "Pad020")
body21.addObject(pad21)
pad21.Profile = sketch21
pad21.setExpression("Length", "Params.pad21_length")
body22 = doc.addObject("PartDesign::Body", "Body021")

# Sketch on XY plane
sketch22 = doc.addObject("Sketcher::SketchObject", "Sketch021")
body22.addObject(sketch22)
sketch22.AttachmentSupport = (doc.getObject("XY_Plane021"), [""])
sketch22.MapMode = "FlatFace"
sketch22.addGeometry(Part.Circle(V(-30.4, -41.9, 0), V(0, 0, 1), 1.8), False)
sketch22.addConstraint(Sketcher.Constraint("Diameter", 0, Q("3.5 mm")))
sketch22.addConstraint(Sketcher.Constraint("DistanceY", 0, 3, -1, 1, Q("41.866629 mm")))
sketch22.addConstraint(Sketcher.Constraint("DistanceX", 0, 3, -1, 1, Q("30.417887 mm")))
sketch22.setExpression("Constraints[0]", "Params.sketch22_diameter")
pad22 = doc.addObject("PartDesign::Pad", "Pad021")
body22.addObject(pad22)
pad22.Profile = sketch22
pad22.setExpression("Length", "Params.pad22_length")
body23 = doc.addObject("PartDesign::Body", "Body022")

# Sketch on XY plane
sketch23 = doc.addObject("Sketcher::SketchObject", "Sketch022")
body23.addObject(sketch23)
sketch23.AttachmentSupport = (doc.getObject("XY_Plane022"), [""])
sketch23.MapMode = "FlatFace"
sketch23.addGeometry(Part.Circle(V(-37.4, -35.8, 0), V(0, 0, 1), 1.8), False)
sketch23.addConstraint(Sketcher.Constraint("Diameter", 0, Q("3.5 mm")))
sketch23.addConstraint(Sketcher.Constraint("DistanceX", 0, 3, -1, 1, Q("37.404634 mm")))
sketch23.addConstraint(Sketcher.Constraint("DistanceY", 0, 3, -1, 1, Q("35.762492 mm")))
sketch23.setExpression("Constraints[0]", "Params.sketch23_diameter")
pad23 = doc.addObject("PartDesign::Pad", "Pad022")
body23.addObject(pad23)
pad23.Profile = sketch23
pad23.setExpression("Length", "Params.pad23_length")
body24 = doc.addObject("PartDesign::Body", "Body023")

# Sketch on XY plane
sketch24 = doc.addObject("Sketcher::SketchObject", "Sketch023")
body24.addObject(sketch24)
sketch24.AttachmentSupport = (doc.getObject("XY_Plane023"), [""])
sketch24.MapMode = "FlatFace"
sketch24.addGeometry(Part.Circle(V(-43.2, -28.5, 0), V(0, 0, 1), 1.8), False)
sketch24.addConstraint(Sketcher.Constraint("Diameter", 0, Q("3.5 mm")))
sketch24.addConstraint(Sketcher.Constraint("DistanceY", 0, 3, -1, 1, Q("28.508919 mm")))
sketch24.addConstraint(Sketcher.Constraint("DistanceX", 0, 3, -1, 1, Q("43.189166 mm")))
sketch24.setExpression("Constraints[0]", "Params.sketch24_diameter")
pad24 = doc.addObject("PartDesign::Pad", "Pad023")
body24.addObject(pad24)
pad24.Profile = sketch24
pad24.setExpression("Length", "Params.pad24_length")
body25 = doc.addObject("PartDesign::Body", "Body024")

# Sketch on XY plane
sketch25 = doc.addObject("Sketcher::SketchObject", "Sketch024")
body25.addObject(sketch25)
sketch25.AttachmentSupport = (doc.getObject("XY_Plane024"), [""])
sketch25.MapMode = "FlatFace"
sketch25.addGeometry(Part.Circle(V(-47.6, -20.3, 0), V(0, 0, 1), 1.8), False)
sketch25.addConstraint(Sketcher.Constraint("Diameter", 0, Q("3.5 mm")))
sketch25.addConstraint(Sketcher.Constraint("DistanceX", 0, 3, -1, 1, Q("47.585562 mm")))
sketch25.addConstraint(Sketcher.Constraint("DistanceY", 0, 3, -1, 1, Q("20.339045 mm")))
sketch25.setExpression("Constraints[0]", "Params.sketch25_diameter")
pad25 = doc.addObject("PartDesign::Pad", "Pad024")
body25.addObject(pad25)
pad25.Profile = sketch25
pad25.setExpression("Length", "Params.pad25_length")
body26 = doc.addObject("PartDesign::Body", "Body025")

# Sketch on XY plane
sketch26 = doc.addObject("Sketcher::SketchObject", "Sketch025")
body26.addObject(sketch26)
sketch26.AttachmentSupport = (doc.getObject("XY_Plane025"), [""])
sketch26.MapMode = "FlatFace"
sketch26.addGeometry(Part.Circle(V(-50.5, -11.5, 0), V(0, 0, 1), 1.8), False)
sketch26.addConstraint(Sketcher.Constraint("Diameter", 0, Q("3.5 mm")))
sketch26.addConstraint(Sketcher.Constraint("DistanceX", 0, 3, -1, 1, Q("50.452519 mm")))
sketch26.addConstraint(Sketcher.Constraint("DistanceY", 0, 3, -1, 1, Q("11.515458 mm")))
sketch26.setExpression("Constraints[0]", "Params.sketch26_diameter")
pad26 = doc.addObject("PartDesign::Pad", "Pad025")
body26.addObject(pad26)
pad26.Profile = sketch26
pad26.setExpression("Length", "Params.pad26_length")
body27 = doc.addObject("PartDesign::Body", "Body026")

# Sketch on XY plane
sketch27 = doc.addObject("Sketcher::SketchObject", "Sketch026")
body27.addObject(sketch27)
sketch27.AttachmentSupport = (doc.getObject("XY_Plane026"), [""])
sketch27.MapMode = "FlatFace"
sketch27.addGeometry(Part.Circle(V(-51.7, -2.3, 0), V(0, 0, 1), 1.8), False)
sketch27.addConstraint(Sketcher.Constraint("Diameter", 0, Q("3.5 mm")))
sketch27.addConstraint(Sketcher.Constraint("DistanceX", 0, 3, -1, 1, Q("51.697891 mm")))
sketch27.addConstraint(Sketcher.Constraint("DistanceY", 0, 3, -1, 1, Q("2.321755 mm")))
sketch27.setExpression("Constraints[0]", "Params.sketch27_diameter")
pad27 = doc.addObject("PartDesign::Pad", "Pad026")
body27.addObject(pad27)
pad27.Profile = sketch27
pad27.setExpression("Length", "Params.pad27_length")
body28 = doc.addObject("PartDesign::Body", "Body027")

# Sketch on XY plane
sketch28 = doc.addObject("Sketcher::SketchObject", "Sketch027")
body28.addObject(sketch28)
sketch28.AttachmentSupport = (doc.getObject("XY_Plane027"), [""])
sketch28.MapMode = "FlatFace"
sketch28.addGeometry(Part.Circle(V(-51.3, 6.9, 0), V(0, 0, 1), 1.8), False)
sketch28.addConstraint(Sketcher.Constraint("Diameter", 0, Q("3.5 mm")))
sketch28.addConstraint(Sketcher.Constraint("DistanceX", 0, 3, -1, 1, Q("51.28165 mm")))
sketch28.addConstraint(Sketcher.Constraint("DistanceY", -1, 1, 0, 3, Q("6.946572 mm")))
sketch28.setExpression("Constraints[0]", "Params.sketch28_diameter")
pad28 = doc.addObject("PartDesign::Pad", "Pad027")
body28.addObject(pad28)
pad28.Profile = sketch28
pad28.setExpression("Length", "Params.pad28_length")
body29 = doc.addObject("PartDesign::Body", "Body028")

# Sketch on XY plane
sketch29 = doc.addObject("Sketcher::SketchObject", "Sketch028")
body29.addObject(sketch29)
sketch29.AttachmentSupport = (doc.getObject("XY_Plane028"), [""])
sketch29.MapMode = "FlatFace"
sketch29.addGeometry(Part.Circle(V(-49.2, 16, 0), V(0, 0, 1), 1.8), False)
sketch29.addConstraint(Sketcher.Constraint("Diameter", 0, Q("3.5 mm")))
sketch29.addConstraint(Sketcher.Constraint("DistanceY", -1, 1, 0, 3, Q("15.991629 mm")))
sketch29.addConstraint(Sketcher.Constraint("DistanceX", 0, 3, -1, 1, Q("49.217175 mm")))
sketch29.setExpression("Constraints[0]", "Params.sketch29_diameter")
pad29 = doc.addObject("PartDesign::Pad", "Pad028")
body29.addObject(pad29)
pad29.Profile = sketch29
pad29.setExpression("Length", "Params.pad29_length")
body30 = doc.addObject("PartDesign::Body", "Body029")

# Sketch on XY plane
sketch30 = doc.addObject("Sketcher::SketchObject", "Sketch029")
body30.addObject(sketch30)
sketch30.AttachmentSupport = (doc.getObject("XY_Plane029"), [""])
sketch30.MapMode = "FlatFace"
sketch30.addGeometry(Part.Circle(V(-45.6, 24.5, 0), V(0, 0, 1), 1.8), False)
sketch30.addConstraint(Sketcher.Constraint("Diameter", 0, Q("3.5 mm")))
sketch30.addConstraint(Sketcher.Constraint("DistanceX", 0, 3, -1, 1, Q("45.570819 mm")))
sketch30.addConstraint(Sketcher.Constraint("DistanceY", -1, 1, 0, 3, Q("24.522703 mm")))
sketch30.setExpression("Constraints[0]", "Params.sketch30_diameter")
pad30 = doc.addObject("PartDesign::Pad", "Pad029")
body30.addObject(pad30)
pad30.Profile = sketch30
pad30.setExpression("Length", "Params.pad30_length")
body31 = doc.addObject("PartDesign::Body", "Body030")

# Sketch on XY plane
sketch31 = doc.addObject("Sketcher::SketchObject", "Sketch030")
body31.addObject(sketch31)
sketch31.AttachmentSupport = (doc.getObject("XY_Plane030"), [""])
sketch31.MapMode = "FlatFace"
sketch31.addGeometry(Part.Circle(V(-40.5, 32.3, 0), V(0, 0, 1), 1.8), False)
sketch31.addConstraint(Sketcher.Constraint("Diameter", 0, Q("3.5 mm")))
sketch31.addConstraint(Sketcher.Constraint("DistanceX", 0, 3, -1, 1, Q("40.459779 mm")))
sketch31.addConstraint(Sketcher.Constraint("DistanceY", -1, 1, 0, 3, Q("32.265597 mm")))
sketch31.setExpression("Constraints[0]", "Params.sketch31_diameter")
pad31 = doc.addObject("PartDesign::Pad", "Pad030")
body31.addObject(pad31)
pad31.Profile = sketch31
pad31.setExpression("Length", "Params.pad31_length")
body32 = doc.addObject("PartDesign::Body", "Body031")

# Sketch on XY plane
sketch32 = doc.addObject("Sketcher::SketchObject", "Sketch031")
body32.addObject(sketch32)
sketch32.AttachmentSupport = (doc.getObject("XY_Plane031"), [""])
sketch32.MapMode = "FlatFace"
sketch32.addGeometry(Part.Circle(V(-34, 39, 0), V(0, 0, 1), 1.8), False)
sketch32.addConstraint(Sketcher.Constraint("Diameter", 0, Q("3.5 mm")))
sketch32.addConstraint(Sketcher.Constraint("DistanceX", 0, 3, -1, 1, Q("34.048329 mm")))
sketch32.addConstraint(Sketcher.Constraint("DistanceY", -1, 1, 0, 3, Q("38.971448 mm")))
sketch32.setExpression("Constraints[0]", "Params.sketch32_diameter")
pad32 = doc.addObject("PartDesign::Pad", "Pad031")
body32.addObject(pad32)
pad32.Profile = sketch32
pad32.setExpression("Length", "Params.pad32_length")
body33 = doc.addObject("PartDesign::Body", "Body032")

# Sketch on XY plane
sketch33 = doc.addObject("Sketcher::SketchObject", "Sketch032")
body33.addObject(sketch33)
sketch33.AttachmentSupport = (doc.getObject("XY_Plane032"), [""])
sketch33.MapMode = "FlatFace"
sketch33.addGeometry(Part.Circle(V(-26.5, 44.4, 0), V(0, 0, 1), 1.8), False)
sketch33.addConstraint(Sketcher.Constraint("Diameter", 0, Q("3.5 mm")))
sketch33.addConstraint(Sketcher.Constraint("DistanceX", 0, 3, -1, 1, Q("26.542538 mm")))
sketch33.addConstraint(Sketcher.Constraint("DistanceY", -1, 1, 0, 3, Q("44.424725 mm")))
sketch33.setExpression("Constraints[0]", "Params.sketch33_diameter")
pad33 = doc.addObject("PartDesign::Pad", "Pad032")
body33.addObject(pad33)
pad33.Profile = sketch33
pad33.setExpression("Length", "Params.pad33_length")
body34 = doc.addObject("PartDesign::Body", "Body033")

# Sketch on XY plane
sketch34 = doc.addObject("Sketcher::SketchObject", "Sketch033")
body34.addObject(sketch34)
sketch34.AttachmentSupport = (doc.getObject("XY_Plane033"), [""])
sketch34.MapMode = "FlatFace"
sketch34.addGeometry(Part.Circle(V(-18.2, 48.5, 0), V(0, 0, 1), 1.8), False)
sketch34.addConstraint(Sketcher.Constraint("Diameter", 0, Q("3.5 mm")))
sketch34.addConstraint(Sketcher.Constraint("DistanceX", 0, 3, -1, 1, Q("18.183647 mm")))
sketch34.addConstraint(Sketcher.Constraint("DistanceY", -1, 1, 0, 3, Q("48.450155 mm")))
sketch34.setExpression("Constraints[0]", "Params.sketch34_diameter")
pad34 = doc.addObject("PartDesign::Pad", "Pad033")
body34.addObject(pad34)
pad34.Profile = sketch34
pad34.setExpression("Length", "Params.pad34_length")
body35 = doc.addObject("PartDesign::Body", "Body034")

# Sketch on XY plane
sketch35 = doc.addObject("Sketcher::SketchObject", "Sketch034")
body35.addObject(sketch35)
sketch35.AttachmentSupport = (doc.getObject("XY_Plane034"), [""])
sketch35.MapMode = "FlatFace"
sketch35.addGeometry(Part.Circle(V(-9.2, 50.9, 0), V(0, 0, 1), 1.8), False)
sketch35.addConstraint(Sketcher.Constraint("Diameter", 0, Q("3.5 mm")))
sketch35.addConstraint(Sketcher.Constraint("DistanceX", 0, 3, -1, 1, Q("9.240319 mm")))
sketch35.addConstraint(Sketcher.Constraint("DistanceY", -1, 1, 0, 3, Q("50.918356 mm")))
sketch35.setExpression("Constraints[0]", "Params.sketch35_diameter")
pad35 = doc.addObject("PartDesign::Pad", "Pad034")
body35.addObject(pad35)
pad35.Profile = sketch35
pad35.setExpression("Length", "Params.pad35_length")

doc.recompute()
